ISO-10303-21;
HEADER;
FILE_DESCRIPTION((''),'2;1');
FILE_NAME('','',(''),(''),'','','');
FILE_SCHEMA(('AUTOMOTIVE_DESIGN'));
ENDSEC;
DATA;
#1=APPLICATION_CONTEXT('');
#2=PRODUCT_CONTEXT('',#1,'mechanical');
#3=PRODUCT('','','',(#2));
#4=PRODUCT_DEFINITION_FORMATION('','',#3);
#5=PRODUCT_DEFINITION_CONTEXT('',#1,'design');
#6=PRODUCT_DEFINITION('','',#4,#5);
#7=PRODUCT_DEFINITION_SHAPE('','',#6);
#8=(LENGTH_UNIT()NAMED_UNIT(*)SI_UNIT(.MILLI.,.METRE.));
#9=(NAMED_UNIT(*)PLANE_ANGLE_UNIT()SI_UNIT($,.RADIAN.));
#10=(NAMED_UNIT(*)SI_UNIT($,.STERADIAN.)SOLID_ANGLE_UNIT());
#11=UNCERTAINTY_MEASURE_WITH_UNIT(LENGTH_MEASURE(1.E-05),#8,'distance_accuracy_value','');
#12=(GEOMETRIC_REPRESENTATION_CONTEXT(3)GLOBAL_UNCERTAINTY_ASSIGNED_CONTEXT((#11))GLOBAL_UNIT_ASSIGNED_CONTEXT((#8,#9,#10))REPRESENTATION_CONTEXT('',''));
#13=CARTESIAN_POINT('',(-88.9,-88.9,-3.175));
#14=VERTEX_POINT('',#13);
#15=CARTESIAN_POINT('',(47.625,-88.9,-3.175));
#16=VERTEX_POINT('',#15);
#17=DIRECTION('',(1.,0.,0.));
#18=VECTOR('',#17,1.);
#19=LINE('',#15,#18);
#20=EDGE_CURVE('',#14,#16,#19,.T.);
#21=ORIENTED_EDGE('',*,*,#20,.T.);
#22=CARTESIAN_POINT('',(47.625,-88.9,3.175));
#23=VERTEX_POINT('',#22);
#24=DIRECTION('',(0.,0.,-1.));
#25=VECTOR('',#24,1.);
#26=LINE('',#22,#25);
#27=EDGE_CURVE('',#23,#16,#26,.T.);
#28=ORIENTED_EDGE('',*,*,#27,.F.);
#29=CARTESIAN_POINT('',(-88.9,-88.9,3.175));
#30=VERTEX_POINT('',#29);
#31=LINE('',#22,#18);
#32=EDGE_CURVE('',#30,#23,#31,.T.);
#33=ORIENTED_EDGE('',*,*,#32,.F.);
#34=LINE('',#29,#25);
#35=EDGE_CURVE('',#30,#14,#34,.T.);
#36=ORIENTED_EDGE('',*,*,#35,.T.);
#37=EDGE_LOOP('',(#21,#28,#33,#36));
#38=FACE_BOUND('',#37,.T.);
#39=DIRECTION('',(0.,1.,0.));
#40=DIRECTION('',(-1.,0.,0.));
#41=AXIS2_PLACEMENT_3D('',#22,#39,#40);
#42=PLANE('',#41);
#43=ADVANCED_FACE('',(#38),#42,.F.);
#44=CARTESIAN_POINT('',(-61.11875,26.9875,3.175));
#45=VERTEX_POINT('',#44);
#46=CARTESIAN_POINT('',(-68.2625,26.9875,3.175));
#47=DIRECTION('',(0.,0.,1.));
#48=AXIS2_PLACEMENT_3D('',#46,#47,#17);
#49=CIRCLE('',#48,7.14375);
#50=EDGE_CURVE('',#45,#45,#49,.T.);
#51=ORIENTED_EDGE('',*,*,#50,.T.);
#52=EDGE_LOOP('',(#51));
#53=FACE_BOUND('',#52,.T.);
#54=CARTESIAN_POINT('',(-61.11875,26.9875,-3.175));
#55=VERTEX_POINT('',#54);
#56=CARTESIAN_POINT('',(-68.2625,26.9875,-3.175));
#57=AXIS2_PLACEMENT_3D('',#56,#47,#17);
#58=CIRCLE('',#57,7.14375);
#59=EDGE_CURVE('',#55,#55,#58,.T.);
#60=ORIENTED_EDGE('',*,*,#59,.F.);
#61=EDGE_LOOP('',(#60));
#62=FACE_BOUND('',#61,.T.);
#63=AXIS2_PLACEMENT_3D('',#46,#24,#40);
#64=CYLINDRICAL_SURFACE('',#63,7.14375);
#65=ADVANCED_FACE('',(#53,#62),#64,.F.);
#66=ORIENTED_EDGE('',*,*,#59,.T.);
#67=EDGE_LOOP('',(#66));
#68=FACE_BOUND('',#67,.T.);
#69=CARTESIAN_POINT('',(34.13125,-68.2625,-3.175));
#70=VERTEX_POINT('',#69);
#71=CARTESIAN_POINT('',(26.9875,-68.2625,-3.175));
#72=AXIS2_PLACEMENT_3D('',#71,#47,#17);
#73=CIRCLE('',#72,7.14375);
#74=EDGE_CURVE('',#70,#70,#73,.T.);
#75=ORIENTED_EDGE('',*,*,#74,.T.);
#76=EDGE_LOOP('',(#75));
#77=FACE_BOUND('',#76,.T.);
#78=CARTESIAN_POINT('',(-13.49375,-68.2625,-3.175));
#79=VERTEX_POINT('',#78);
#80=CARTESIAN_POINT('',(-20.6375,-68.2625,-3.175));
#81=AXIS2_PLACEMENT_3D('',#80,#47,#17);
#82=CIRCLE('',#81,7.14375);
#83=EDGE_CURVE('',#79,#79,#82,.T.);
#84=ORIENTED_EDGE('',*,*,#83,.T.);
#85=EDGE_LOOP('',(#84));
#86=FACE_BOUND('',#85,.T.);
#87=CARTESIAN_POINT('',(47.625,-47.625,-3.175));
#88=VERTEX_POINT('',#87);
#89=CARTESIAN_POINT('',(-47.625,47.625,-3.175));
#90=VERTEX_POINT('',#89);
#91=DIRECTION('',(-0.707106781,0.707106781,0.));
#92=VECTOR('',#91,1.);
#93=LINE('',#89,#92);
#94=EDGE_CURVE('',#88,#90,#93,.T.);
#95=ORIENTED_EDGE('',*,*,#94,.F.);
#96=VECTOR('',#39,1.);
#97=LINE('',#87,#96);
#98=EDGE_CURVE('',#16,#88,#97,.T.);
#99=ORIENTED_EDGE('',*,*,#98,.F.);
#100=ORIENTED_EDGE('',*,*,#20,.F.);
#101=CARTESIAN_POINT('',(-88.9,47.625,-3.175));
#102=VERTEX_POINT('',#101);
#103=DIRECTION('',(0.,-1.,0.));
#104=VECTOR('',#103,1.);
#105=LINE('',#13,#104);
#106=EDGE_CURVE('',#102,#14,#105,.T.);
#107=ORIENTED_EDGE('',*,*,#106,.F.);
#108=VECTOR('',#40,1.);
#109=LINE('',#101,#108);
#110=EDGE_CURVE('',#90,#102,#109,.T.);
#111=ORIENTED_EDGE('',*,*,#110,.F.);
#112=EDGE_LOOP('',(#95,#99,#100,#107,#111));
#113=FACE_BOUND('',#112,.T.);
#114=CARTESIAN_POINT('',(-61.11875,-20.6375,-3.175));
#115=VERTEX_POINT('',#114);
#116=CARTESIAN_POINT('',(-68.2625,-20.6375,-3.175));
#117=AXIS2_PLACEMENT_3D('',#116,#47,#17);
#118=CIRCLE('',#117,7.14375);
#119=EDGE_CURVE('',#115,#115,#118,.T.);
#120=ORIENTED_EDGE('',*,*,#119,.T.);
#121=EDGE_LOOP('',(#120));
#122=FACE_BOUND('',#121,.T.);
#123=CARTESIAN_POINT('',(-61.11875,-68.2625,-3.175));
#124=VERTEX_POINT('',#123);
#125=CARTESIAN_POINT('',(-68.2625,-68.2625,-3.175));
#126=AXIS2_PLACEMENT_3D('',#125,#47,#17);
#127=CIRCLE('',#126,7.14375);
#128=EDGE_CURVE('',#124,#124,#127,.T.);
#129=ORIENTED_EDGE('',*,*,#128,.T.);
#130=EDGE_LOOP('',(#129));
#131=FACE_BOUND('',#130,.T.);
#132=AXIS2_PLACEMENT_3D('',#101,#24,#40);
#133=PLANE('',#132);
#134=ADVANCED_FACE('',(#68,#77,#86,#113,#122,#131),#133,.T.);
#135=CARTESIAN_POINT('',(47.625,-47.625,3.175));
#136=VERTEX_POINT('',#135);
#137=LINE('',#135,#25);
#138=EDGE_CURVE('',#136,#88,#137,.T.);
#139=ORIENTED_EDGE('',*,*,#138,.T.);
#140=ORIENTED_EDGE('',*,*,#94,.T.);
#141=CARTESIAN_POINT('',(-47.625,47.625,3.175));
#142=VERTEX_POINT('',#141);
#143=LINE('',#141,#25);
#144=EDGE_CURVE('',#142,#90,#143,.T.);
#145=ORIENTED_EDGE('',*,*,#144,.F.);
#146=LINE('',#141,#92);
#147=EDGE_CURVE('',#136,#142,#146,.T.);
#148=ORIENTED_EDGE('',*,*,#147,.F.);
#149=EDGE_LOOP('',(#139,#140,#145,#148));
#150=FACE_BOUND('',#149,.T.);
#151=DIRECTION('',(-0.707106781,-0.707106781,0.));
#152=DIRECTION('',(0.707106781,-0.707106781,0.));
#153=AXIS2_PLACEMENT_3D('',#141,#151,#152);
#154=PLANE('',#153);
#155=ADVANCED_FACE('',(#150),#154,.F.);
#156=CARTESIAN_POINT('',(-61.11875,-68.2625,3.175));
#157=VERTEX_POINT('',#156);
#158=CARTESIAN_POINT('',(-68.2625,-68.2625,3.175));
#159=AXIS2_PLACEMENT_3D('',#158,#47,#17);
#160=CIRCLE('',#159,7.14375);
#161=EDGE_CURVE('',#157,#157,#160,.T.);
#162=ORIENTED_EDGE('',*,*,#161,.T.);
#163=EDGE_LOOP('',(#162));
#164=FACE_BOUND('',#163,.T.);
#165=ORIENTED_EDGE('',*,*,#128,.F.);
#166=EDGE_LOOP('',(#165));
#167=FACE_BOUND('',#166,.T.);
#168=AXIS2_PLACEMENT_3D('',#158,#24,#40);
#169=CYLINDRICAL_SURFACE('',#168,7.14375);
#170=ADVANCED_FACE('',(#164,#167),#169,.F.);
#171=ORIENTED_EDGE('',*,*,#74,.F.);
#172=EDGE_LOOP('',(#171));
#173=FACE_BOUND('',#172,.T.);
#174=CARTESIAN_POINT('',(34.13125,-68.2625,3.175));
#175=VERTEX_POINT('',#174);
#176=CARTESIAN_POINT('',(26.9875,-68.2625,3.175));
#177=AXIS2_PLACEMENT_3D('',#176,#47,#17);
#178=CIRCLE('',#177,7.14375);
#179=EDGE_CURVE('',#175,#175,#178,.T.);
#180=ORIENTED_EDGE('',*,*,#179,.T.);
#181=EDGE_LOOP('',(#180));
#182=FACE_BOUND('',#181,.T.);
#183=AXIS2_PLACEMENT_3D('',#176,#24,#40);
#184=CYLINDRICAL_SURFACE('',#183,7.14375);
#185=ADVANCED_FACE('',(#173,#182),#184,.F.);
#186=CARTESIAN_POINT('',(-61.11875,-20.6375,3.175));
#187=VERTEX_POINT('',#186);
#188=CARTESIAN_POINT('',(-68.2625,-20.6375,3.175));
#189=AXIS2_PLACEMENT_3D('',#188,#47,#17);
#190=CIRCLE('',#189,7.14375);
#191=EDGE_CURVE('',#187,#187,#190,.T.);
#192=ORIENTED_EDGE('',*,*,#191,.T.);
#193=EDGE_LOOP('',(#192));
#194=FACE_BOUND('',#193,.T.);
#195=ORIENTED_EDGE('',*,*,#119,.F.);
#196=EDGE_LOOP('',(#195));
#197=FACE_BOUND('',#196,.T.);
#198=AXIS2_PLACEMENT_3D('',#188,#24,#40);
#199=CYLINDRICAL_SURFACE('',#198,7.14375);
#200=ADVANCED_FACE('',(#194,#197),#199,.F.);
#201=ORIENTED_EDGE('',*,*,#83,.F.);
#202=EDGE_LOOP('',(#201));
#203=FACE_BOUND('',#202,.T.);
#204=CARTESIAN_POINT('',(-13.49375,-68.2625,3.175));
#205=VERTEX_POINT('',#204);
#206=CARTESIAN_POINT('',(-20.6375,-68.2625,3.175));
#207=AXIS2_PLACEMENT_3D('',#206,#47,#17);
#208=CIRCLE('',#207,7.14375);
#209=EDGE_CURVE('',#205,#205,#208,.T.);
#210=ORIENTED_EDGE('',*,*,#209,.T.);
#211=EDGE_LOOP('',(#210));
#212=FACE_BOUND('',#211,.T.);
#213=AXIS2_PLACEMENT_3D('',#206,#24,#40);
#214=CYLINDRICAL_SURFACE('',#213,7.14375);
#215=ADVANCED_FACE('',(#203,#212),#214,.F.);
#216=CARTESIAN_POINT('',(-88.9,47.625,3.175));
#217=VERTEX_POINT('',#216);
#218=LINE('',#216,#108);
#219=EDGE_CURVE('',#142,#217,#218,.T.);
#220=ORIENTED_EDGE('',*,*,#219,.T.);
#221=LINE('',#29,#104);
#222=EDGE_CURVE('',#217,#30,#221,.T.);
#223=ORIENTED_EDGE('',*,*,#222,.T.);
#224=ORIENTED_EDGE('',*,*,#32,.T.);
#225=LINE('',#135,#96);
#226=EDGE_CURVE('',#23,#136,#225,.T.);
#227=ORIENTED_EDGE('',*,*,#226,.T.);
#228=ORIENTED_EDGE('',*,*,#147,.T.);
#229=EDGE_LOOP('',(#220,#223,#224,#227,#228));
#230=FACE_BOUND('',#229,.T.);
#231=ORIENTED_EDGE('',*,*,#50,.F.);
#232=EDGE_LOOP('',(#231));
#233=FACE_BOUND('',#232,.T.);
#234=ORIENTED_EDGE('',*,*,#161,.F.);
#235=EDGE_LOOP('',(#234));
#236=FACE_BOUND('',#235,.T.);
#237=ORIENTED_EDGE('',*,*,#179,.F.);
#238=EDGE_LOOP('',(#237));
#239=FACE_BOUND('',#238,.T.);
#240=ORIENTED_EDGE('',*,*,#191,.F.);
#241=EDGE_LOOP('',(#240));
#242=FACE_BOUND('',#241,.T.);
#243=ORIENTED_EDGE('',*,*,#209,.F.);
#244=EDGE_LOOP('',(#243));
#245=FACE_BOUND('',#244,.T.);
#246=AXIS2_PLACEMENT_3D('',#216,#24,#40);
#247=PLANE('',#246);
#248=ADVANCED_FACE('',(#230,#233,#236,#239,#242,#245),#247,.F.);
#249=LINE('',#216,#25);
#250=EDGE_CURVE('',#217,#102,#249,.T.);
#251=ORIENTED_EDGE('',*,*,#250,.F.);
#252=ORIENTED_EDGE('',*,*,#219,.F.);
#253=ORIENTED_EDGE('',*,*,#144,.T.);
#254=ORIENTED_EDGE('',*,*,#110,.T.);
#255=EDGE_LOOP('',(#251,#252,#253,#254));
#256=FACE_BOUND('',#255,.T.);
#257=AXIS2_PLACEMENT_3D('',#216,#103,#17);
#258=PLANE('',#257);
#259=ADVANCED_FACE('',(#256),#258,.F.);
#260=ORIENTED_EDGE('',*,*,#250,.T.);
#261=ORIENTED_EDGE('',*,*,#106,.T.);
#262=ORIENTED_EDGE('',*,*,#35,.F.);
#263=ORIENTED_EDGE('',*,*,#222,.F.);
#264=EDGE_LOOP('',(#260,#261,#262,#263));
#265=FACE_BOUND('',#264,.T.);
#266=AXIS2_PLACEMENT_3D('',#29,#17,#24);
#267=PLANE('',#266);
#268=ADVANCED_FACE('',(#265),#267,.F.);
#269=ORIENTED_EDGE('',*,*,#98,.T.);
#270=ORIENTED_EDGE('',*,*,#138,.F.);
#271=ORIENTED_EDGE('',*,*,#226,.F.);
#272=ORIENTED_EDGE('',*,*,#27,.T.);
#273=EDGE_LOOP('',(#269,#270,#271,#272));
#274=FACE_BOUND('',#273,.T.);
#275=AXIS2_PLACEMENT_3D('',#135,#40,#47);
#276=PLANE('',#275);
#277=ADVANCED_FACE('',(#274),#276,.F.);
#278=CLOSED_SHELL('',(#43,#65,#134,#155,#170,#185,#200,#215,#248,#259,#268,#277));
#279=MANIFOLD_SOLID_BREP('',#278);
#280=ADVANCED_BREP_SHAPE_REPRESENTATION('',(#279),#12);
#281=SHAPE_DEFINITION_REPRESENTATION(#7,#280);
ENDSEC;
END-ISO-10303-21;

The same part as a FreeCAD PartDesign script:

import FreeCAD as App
import Part
import Sketcher
Q = App.Units.Quantity

doc = App.newDocument("Part")
body = doc.addObject("PartDesign::Body", "Body")

# Sketch on XY plane
sketch1 = body.newObject("Sketcher::SketchObject", "Sketch")
sketch1.AttachmentSupport = (doc.getObject("XY_Plane"), [""])
sketch1.MapMode = "FlatFace"
sketch1.addGeometry(Part.LineSegment(App.Vector(-48, 48, 0), App.Vector(-89, 48, 0)), False)
sketch1.addGeometry(Part.LineSegment(App.Vector(-89, 48, 0), App.Vector(-89, -89, 0)), False)
sketch1.addGeometry(Part.LineSegment(App.Vector(-89, -89, 0), App.Vector(48, -89, 0)), False)
sketch1.addGeometry(Part.LineSegment(App.Vector(48, -89, 0), App.Vector(48, -48, 0)), False)
sketch1.addGeometry(Part.LineSegment(App.Vector(48, -48, 0), App.Vector(-48, 48, 0)), False)
sketch1.addGeometry(Part.Circle(App.Vector(27, -68, 0), App.Vector(0, 0, 1), 7), False)
sketch1.addGeometry(Part.Circle(App.Vector(-21, -68, 0), App.Vector(0, 0, 1), 7), False)
sketch1.addGeometry(Part.Circle(App.Vector(-68, -68, 0), App.Vector(0, 0, 1), 7), False)
sketch1.addGeometry(Part.Circle(App.Vector(-68, -21, 0), App.Vector(0, 0, 1), 7), False)
sketch1.addGeometry(Part.Circle(App.Vector(-68, 27, 0), App.Vector(0, 0, 1), 7), False)
sketch1.addConstraint(Sketcher.Constraint("Coincident", 0, 2, 1, 1))
sketch1.addConstraint(Sketcher.Constraint("Coincident", 1, 2, 2, 1))
sketch1.addConstraint(Sketcher.Constraint("Coincident", 2, 2, 3, 1))
sketch1.addConstraint(Sketcher.Constraint("Coincident", 3, 2, 4, 1))
sketch1.addConstraint(Sketcher.Constraint("Coincident", 4, 2, 0, 1))
sketch1.addConstraint(Sketcher.Constraint("Horizontal", 0))
sketch1.addConstraint(Sketcher.Constraint("Vertical", 1))
sketch1.addConstraint(Sketcher.Constraint("Horizontal", 2))
sketch1.addConstraint(Sketcher.Constraint("Vertical", 3))
sketch1.addConstraint(Sketcher.Constraint("Equal", 5, 6))
sketch1.addConstraint(Sketcher.Constraint("Equal", 6, 7))
sketch1.addConstraint(Sketcher.Constraint("Equal", 7, 8))
sketch1.addConstraint(Sketcher.Constraint("Equal", 8, 9))
sketch1.addConstraint(Sketcher.Constraint("Symmetric", 3, 2, 4, 2, -1, 1))
sketch1.addConstraint(Sketcher.Constraint("Horizontal", 5, 3, 6, 3))
sketch1.addConstraint(Sketcher.Constraint("Horizontal", 6, 3, 7, 3))
sketch1.addConstraint(Sketcher.Constraint("Vertical", 7, 3, 8, 3))
sketch1.addConstraint(Sketcher.Constraint("Vertical", 8, 3, 9, 3))
sketch1.addConstraint(Sketcher.Constraint("Equal", 2, 1))
sketch1.addConstraint(Sketcher.Constraint("Equal", 0, 3))
sketch1.addConstraint(Sketcher.Constraint("Diameter", 5, Q("0.5625 in")))
sketch1.addConstraint(Sketcher.Constraint("DistanceX", 0, 2, -1, 1, Q("3.5 in")))
sketch1.addConstraint(Sketcher.Constraint("DistanceX", 0, 2, 0, 1, Q("1.625 in")))
sketch1.addConstraint(Sketcher.Constraint("DistanceX", 7, 3, 5, 3, Q("3.75 in")))
sketch1.addConstraint(Sketcher.Constraint("DistanceY", 7, 3, 9, 3, Q("3.75 in")))
sketch1.addConstraint(Sketcher.Constraint("DistanceX", -1, 1, 5, 3, Q("1.0625 in")))
sketch1.addConstraint(Sketcher.Constraint("DistanceY", 5, 3, -1, 1, Q("2.6875 in")))
sketch1.addConstraint(Sketcher.Constraint("DistanceX", 6, 3, -1, 1, Q("0.8125 in")))
sketch1.addConstraint(Sketcher.Constraint("DistanceY", 8, 3, -1, 1, Q("0.8125 in")))
pad1 = body.newObject("PartDesign::Pad", "Pad")
pad1.Profile = sketch1
pad1.Length = Q("0.25 in")
pad1.Midplane = True

doc.recompute()
